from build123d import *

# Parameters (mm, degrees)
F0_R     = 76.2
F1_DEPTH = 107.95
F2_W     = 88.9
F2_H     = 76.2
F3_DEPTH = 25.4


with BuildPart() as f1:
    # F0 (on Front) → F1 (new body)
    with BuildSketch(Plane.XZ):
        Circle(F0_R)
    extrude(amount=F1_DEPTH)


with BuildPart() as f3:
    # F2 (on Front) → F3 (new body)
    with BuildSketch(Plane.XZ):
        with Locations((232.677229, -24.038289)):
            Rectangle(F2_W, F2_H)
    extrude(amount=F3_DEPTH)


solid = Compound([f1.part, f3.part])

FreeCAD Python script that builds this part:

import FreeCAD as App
import Part
import Sketcher
Q = App.Units.Quantity

doc = App.newDocument("Part")
body = doc.addObject("PartDesign::Body", "Body")

# Sketch on XZ plane
sketch1 = body.newObject("Sketcher::SketchObject", "Sketch")
sketch1.AttachmentSupport = (doc.getObject("XZ_Plane"), [""])
sketch1.MapMode = "FlatFace"
sketch1.addGeometry(Part.Circle(App.Vector(0, 0, 0), App.Vector(0, 0, 1), 76), False)
sketch1.addConstraint(Sketcher.Constraint("Coincident", 0, 3, -1, 1))
sketch1.addConstraint(Sketcher.Constraint("Diameter", 0, Q("6 in")))
pad1 = body.newObject("PartDesign::Pad", "Pad")
pad1.Profile = sketch1
pad1.Length = Q("4.25 in")
body2 = doc.addObject("PartDesign::Body", "Body001")

# Sketch on XZ plane
sketch2 = body2.newObject("Sketcher::SketchObject", "Sketch001")
sketch2.AttachmentSupport = (doc.getObject("XZ_Plane001"), [""])
sketch2.MapMode = "FlatFace"
sketch2.addGeometry(Part.LineSegment(App.Vector(188, 14, 0), App.Vector(188, -62, 0)), False)
sketch2.addGeometry(Part.LineSegment(App.Vector(188, -62, 0), App.Vector(277, -62, 0)), False)
sketch2.addGeometry(Part.LineSegment(App.Vector(277, -62, 0), App.Vector(277, 14, 0)), False)
sketch2.addGeometry(Part.LineSegment(App.Vector(277, 14, 0), App.Vector(188, 14, 0)), False)
sketch2.addConstraint(Sketcher.Constraint("Coincident", 0, 2, 1, 1))
sketch2.addConstraint(Sketcher.Constraint("Coincident", 1, 2, 2, 1))
sketch2.addConstraint(Sketcher.Constraint("Coincident", 2, 2, 3, 1))
sketch2.addConstraint(Sketcher.Constraint("Coincident", 3, 2, 0, 1))
sketch2.addConstraint(Sketcher.Constraint("Vertical", 0))
sketch2.addConstraint(Sketcher.Constraint("Horizontal", 1))
sketch2.addConstraint(Sketcher.Constraint("Vertical", 2))
sketch2.addConstraint(Sketcher.Constraint("Horizontal", 3))
sketch2.addConstraint(Sketcher.Constraint("DistanceY", 0, 2, 0, 1, Q("3 in")))
sketch2.addConstraint(Sketcher.Constraint("DistanceX", 1, 1, 1, 2, Q("3.5 in")))
sketch2.addConstraint(Sketcher.Constraint("DistanceX", -1, 1, 0, 2, Q("188.227229 mm")))
sketch2.addConstraint(Sketcher.Constraint("DistanceY", 0, 2, -1, 1, Q("62.138289 mm")))
pad2 = body2.newObject("PartDesign::Pad", "Pad001")
pad2.Profile = sketch2
pad2.Length = Q("1 in")

doc.recompute()
